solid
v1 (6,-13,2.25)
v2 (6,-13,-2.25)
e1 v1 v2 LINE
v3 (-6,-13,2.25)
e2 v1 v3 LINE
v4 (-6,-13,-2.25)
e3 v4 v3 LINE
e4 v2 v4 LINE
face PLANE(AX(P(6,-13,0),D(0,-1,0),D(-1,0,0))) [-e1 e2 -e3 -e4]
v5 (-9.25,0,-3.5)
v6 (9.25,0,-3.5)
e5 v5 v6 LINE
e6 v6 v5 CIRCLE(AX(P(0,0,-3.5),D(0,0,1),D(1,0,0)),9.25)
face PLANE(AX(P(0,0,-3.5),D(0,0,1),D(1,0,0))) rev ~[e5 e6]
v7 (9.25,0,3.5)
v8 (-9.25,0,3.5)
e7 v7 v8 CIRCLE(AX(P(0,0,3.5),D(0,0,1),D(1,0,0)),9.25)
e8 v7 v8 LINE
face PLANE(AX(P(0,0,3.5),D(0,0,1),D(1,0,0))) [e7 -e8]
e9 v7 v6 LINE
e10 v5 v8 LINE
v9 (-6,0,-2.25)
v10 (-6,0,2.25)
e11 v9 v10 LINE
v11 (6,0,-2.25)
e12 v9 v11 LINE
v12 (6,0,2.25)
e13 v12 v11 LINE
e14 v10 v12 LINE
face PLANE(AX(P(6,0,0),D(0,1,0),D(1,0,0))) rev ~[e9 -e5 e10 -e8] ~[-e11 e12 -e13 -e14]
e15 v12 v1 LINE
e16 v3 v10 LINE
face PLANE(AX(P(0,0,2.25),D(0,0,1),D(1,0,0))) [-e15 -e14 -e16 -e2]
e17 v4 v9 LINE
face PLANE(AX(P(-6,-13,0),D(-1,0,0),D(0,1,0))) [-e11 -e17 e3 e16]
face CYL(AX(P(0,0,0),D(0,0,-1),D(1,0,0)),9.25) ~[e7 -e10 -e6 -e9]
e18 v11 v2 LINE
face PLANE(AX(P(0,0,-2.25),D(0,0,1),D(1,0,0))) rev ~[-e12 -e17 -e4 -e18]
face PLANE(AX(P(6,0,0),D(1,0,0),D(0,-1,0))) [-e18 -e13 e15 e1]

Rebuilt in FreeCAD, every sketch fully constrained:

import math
import FreeCAD as App
import Part
import Sketcher
from FreeCAD import Vector
Q = App.Units.Quantity


def add_polygon(sketch, points):
    """Adds a closed chain of lines whose ends are joined by coincident constraints."""
    first, n = sketch.GeometryCount, len(points)
    for a, b in zip(points, points[1:] + points[:1]):
        sketch.addGeometry(Part.LineSegment(App.Vector(*a, 0), App.Vector(*b, 0)), False)
    for i in range(n):
        sketch.addConstraint(Sketcher.Constraint("Coincident", first + i, 2, first + (i + 1) % n, 1))

doc = App.newDocument("Part")
params = doc.addObject("Spreadsheet::Sheet", "Params")
for row, (alias, value) in enumerate([
    ("sketch1_radius", "9.25 mm"),
    ("pad1_length", "7 mm"),
    ("sketch2_width", "12 mm"),
    ("sketch2_height", "13 mm"),
    ("pad2_length", "4.5 mm"),
], start=1):
    params.set(f"A{row}", alias)
    params.set(f"B{row}", "=" + value)
    params.setAlias(f"B{row}", alias)

body = doc.addObject("PartDesign::Body", "Body")

sketch1 = body.newObject("Sketcher::SketchObject", "Sketch")
sketch1.AttachmentSupport = (doc.getObject("XY_Plane"), [""])
sketch1.MapMode = "FlatFace"
sketch1.addGeometry([
    Part.ArcOfCircle(Part.Circle(Vector(0, 0, 0), Vector(0, 0, 1), 9), math.radians(0), math.radians(180)),
    Part.LineSegment(Vector(-9, 0, 0), Vector(9, 0, 0)),
], False)
sketch1.addConstraint([
    Sketcher.Constraint("Coincident", 0, 1, 1, 2),
    Sketcher.Constraint("Coincident", 1, 1, 0, 2),
    Sketcher.Constraint("Horizontal", 1),
    Sketcher.Constraint("Coincident", 0, 3, -1, 1),
    Sketcher.Constraint("PointOnObject", 0, 1, -1),
    Sketcher.Constraint("Radius", 0, Q("9.25 mm")),
])
sketch1.setExpression("Constraints[5]", "Params.sketch1_radius")
pad1 = body.newObject("PartDesign::Pad", "Pad")
pad1.Profile = sketch1
pad1.setExpression("Length", "Params.pad1_length")
pad1.Midplane = True

sketch2 = body.newObject("Sketcher::SketchObject", "Sketch001")
sketch2.AttachmentSupport = (doc.getObject("XY_Plane"), [""])
sketch2.MapMode = "FlatFace"
add_polygon(sketch2, [(6, 0), (-6, 0), (-6, -13), (6, -13)])
sketch2.addConstraint([
    Sketcher.Constraint("Horizontal", 0),
    Sketcher.Constraint("Vertical", 1),
    Sketcher.Constraint("Horizontal", 2),
    Sketcher.Constraint("Vertical", 3),
    Sketcher.Constraint("Symmetric", 0, 2, 3, 2, -1, 1),
    Sketcher.Constraint("DistanceX", 0, 2, 0, 1, Q("12 mm")),
    Sketcher.Constraint("DistanceY", 1, 2, 1, 1, Q("13 mm")),
])
sketch2.setExpression("Constraints[9]", "Params.sketch2_width")
sketch2.setExpression("Constraints[10]", "Params.sketch2_height")
pad2 = body.newObject("PartDesign::Pad", "Pad001")
pad2.Profile = sketch2
pad2.setExpression("Length", "Params.pad2_length")
pad2.Midplane = True

doc.recompute()
